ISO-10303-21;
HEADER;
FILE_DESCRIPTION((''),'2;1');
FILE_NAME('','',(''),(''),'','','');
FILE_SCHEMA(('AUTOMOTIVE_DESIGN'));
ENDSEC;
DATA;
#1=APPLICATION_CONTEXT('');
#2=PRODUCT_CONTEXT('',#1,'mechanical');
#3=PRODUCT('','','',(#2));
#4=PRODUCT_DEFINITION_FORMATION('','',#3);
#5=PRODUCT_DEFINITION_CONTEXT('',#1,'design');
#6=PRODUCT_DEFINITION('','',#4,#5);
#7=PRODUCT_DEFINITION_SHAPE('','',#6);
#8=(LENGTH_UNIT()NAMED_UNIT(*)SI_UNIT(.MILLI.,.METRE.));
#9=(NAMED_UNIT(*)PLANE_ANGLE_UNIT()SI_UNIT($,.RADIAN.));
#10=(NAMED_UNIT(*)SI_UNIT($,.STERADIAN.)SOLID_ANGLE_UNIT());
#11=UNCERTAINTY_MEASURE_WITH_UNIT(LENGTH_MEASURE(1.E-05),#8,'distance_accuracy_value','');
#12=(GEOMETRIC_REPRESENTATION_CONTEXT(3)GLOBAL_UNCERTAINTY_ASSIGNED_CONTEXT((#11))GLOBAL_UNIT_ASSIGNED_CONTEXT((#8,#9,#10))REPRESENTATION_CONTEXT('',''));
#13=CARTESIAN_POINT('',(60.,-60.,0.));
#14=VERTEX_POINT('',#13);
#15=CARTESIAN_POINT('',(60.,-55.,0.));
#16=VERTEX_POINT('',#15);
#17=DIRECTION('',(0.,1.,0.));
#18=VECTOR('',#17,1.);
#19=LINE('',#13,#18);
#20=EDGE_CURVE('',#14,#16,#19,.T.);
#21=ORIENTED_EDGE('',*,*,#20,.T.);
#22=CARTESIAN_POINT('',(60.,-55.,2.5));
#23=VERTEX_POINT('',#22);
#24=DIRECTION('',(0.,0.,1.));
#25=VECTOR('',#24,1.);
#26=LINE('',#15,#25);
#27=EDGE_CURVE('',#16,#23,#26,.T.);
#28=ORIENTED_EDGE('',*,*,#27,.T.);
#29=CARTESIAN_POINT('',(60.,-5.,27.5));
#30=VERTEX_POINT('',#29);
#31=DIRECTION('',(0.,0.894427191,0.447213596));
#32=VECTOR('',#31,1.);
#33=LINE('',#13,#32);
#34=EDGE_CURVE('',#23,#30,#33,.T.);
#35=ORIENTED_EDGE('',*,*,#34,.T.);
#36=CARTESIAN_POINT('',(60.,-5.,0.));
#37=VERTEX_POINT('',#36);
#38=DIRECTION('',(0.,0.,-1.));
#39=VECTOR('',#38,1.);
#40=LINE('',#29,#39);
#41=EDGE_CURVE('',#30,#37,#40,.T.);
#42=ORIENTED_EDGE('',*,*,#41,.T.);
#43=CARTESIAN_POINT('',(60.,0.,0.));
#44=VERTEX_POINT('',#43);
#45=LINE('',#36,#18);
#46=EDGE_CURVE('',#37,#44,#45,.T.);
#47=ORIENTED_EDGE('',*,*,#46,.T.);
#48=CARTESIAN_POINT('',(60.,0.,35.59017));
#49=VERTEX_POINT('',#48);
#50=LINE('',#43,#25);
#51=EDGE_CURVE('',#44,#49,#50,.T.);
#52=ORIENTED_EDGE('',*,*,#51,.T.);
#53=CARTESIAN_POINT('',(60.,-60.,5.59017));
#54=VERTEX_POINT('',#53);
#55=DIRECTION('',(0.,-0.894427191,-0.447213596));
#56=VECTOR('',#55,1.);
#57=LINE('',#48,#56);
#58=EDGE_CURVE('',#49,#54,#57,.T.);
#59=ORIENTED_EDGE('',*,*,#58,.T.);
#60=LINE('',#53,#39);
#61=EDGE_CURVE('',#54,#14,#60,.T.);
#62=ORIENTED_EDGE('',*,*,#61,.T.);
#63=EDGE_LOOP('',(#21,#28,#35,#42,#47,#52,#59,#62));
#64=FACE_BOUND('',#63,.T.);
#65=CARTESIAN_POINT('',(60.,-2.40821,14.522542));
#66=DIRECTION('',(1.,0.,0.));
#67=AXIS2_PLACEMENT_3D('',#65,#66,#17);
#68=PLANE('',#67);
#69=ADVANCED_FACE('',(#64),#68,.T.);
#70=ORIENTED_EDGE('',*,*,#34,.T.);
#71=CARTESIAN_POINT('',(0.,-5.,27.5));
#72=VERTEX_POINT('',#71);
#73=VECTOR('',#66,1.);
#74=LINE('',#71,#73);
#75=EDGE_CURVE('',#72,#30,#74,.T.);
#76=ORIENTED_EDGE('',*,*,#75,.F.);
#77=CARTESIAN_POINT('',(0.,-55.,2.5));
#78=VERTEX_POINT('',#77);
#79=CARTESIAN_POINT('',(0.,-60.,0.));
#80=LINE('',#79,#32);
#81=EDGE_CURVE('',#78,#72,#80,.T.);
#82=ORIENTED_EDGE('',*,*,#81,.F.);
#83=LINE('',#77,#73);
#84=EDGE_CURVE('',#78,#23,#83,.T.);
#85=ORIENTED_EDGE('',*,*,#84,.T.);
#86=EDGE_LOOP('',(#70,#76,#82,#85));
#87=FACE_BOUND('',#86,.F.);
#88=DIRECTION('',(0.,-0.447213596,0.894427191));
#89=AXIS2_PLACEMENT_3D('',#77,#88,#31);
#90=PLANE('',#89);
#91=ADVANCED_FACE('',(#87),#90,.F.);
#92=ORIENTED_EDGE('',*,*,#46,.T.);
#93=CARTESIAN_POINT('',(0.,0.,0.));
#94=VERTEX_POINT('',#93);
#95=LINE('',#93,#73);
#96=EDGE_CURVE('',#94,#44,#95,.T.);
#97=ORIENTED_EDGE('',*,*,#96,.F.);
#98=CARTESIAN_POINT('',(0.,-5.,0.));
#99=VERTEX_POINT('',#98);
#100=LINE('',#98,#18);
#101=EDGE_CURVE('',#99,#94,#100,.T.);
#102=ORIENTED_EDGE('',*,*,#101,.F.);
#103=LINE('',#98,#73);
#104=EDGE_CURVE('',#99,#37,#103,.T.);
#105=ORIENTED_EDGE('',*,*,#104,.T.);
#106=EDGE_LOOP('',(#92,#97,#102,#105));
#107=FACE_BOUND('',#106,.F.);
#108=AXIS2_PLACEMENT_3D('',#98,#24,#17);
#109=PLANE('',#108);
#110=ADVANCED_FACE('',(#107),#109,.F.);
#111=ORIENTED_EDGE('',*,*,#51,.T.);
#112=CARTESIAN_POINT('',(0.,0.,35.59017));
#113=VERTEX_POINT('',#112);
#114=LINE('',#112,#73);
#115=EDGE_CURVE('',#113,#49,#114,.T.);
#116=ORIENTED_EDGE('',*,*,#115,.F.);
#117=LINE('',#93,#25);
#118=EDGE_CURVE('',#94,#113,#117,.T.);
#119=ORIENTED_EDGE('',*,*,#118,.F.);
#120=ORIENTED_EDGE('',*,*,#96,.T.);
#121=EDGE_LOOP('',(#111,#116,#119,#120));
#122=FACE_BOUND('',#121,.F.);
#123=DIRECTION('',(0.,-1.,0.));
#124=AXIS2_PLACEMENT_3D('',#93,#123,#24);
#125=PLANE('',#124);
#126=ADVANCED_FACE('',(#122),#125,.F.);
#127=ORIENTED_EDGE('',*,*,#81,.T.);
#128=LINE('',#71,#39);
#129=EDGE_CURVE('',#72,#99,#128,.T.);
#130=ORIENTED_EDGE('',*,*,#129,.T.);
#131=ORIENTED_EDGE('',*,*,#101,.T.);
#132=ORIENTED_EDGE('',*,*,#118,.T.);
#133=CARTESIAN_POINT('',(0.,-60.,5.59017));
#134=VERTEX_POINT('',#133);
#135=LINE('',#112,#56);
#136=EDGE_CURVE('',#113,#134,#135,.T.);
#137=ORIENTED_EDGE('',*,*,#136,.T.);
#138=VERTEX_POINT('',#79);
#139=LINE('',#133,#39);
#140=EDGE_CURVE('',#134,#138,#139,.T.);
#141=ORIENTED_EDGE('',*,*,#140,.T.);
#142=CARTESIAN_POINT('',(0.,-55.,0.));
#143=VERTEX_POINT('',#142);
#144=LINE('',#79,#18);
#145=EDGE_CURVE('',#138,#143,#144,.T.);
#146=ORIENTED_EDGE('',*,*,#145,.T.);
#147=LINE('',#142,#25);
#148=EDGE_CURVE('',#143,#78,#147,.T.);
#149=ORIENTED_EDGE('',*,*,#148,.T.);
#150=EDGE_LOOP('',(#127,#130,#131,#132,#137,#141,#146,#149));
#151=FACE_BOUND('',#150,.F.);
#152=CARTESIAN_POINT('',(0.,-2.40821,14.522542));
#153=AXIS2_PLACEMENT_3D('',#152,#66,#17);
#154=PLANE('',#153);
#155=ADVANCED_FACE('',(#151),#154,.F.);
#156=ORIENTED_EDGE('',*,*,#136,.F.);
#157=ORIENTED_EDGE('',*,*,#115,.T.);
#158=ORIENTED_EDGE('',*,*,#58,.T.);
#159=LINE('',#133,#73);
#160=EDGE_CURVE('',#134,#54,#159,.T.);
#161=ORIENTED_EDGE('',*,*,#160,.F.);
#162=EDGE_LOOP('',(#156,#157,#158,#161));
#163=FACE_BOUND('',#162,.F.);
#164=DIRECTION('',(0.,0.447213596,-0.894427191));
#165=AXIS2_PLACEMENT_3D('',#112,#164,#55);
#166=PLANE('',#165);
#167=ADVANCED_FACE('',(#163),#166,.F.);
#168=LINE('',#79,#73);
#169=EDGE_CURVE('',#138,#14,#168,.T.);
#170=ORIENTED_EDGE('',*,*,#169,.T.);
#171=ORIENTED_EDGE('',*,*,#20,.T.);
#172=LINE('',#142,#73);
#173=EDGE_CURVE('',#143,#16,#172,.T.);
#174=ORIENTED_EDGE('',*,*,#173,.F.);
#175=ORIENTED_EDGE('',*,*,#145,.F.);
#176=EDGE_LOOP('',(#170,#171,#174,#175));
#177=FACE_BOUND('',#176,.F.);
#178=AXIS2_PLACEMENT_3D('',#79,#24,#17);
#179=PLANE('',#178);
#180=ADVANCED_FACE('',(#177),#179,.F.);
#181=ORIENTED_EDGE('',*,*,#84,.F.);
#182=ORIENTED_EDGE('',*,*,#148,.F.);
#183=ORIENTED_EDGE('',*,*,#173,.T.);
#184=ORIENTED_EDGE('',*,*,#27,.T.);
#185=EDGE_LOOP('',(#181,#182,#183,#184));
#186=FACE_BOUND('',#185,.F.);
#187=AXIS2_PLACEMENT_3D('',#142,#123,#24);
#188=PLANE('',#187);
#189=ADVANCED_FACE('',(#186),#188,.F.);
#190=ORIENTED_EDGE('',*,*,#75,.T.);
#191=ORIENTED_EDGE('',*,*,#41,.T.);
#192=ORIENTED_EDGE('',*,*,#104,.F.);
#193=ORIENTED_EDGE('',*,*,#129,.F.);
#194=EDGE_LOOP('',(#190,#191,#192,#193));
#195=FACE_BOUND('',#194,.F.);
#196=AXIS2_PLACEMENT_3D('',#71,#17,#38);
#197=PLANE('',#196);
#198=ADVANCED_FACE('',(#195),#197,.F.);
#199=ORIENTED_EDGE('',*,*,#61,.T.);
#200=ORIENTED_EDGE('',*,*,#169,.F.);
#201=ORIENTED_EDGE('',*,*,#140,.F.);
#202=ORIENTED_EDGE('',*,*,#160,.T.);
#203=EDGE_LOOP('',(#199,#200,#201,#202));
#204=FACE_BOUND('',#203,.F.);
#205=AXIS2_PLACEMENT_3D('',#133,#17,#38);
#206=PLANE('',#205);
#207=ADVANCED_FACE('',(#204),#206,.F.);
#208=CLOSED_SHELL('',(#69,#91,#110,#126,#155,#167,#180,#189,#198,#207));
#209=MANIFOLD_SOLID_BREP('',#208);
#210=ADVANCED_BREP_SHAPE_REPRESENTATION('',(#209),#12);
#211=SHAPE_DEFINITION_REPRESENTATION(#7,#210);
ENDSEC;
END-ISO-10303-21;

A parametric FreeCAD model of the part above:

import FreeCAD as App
import Part
import Sketcher
from FreeCAD import Vector


def add_polygon(sketch, points):
    """Adds a closed chain of lines whose ends are joined by coincident constraints."""
    first, n = sketch.GeometryCount, len(points)
    for a, b in zip(points, points[1:] + points[:1]):
        sketch.addGeometry(Part.LineSegment(App.Vector(*a, 0), App.Vector(*b, 0)), False)
    for i in range(n):
        sketch.addConstraint(Sketcher.Constraint("Coincident", first + i, 2, first + (i + 1) % n, 1))

doc = App.newDocument("Part")
body = doc.addObject("PartDesign::Body", "Body")

sketch1 = body.newObject("Sketcher::SketchObject", "Sketch")
sketch1.AttachmentSupport = (doc.getObject("YZ_Plane"), [""])
sketch1.MapMode = "FlatFace"
add_polygon(sketch1, [(-5, 0), (0, 0), (0, 35.6), (-60, 5.6), (-60, 0), (-55, 0), (-55, 2.5), (-5, 27.5)])
sketch1.addConstraint([
    Sketcher.Constraint("Horizontal", 0),
    Sketcher.Constraint("Vertical", 1),
    Sketcher.Constraint("Vertical", 3),
    Sketcher.Constraint("Horizontal", 4),
    Sketcher.Constraint("Vertical", 5),
    Sketcher.Constraint("Vertical", 7),
    Sketcher.Constraint("Coincident", 0, 2, -1, 1),
    Sketcher.Constraint("PointOnObject", 3, 2, -1),
    Sketcher.Constraint("Parallel", 2, 6),
    Sketcher.Constraint("Equal", 0, 4),
    Sketcher.Constraint("DistanceX", 0, 1, 0, 2, 5.0),
    Sketcher.Constraint("DistanceY", 5, 1, 5, 2, 2.5),
    Sketcher.Constraint("DistanceY", 7, 2, 7, 1, 27.5),
    Sketcher.Constraint("DistanceX", 2, 2, -1, 1, 60.0),
    Sketcher.Constraint("DistanceY", 1, 1, 1, 2, 35.59017),
])
pad1 = body.newObject("PartDesign::Pad", "Pad")
pad1.Profile = sketch1
pad1.Length = 60

doc.recompute()
